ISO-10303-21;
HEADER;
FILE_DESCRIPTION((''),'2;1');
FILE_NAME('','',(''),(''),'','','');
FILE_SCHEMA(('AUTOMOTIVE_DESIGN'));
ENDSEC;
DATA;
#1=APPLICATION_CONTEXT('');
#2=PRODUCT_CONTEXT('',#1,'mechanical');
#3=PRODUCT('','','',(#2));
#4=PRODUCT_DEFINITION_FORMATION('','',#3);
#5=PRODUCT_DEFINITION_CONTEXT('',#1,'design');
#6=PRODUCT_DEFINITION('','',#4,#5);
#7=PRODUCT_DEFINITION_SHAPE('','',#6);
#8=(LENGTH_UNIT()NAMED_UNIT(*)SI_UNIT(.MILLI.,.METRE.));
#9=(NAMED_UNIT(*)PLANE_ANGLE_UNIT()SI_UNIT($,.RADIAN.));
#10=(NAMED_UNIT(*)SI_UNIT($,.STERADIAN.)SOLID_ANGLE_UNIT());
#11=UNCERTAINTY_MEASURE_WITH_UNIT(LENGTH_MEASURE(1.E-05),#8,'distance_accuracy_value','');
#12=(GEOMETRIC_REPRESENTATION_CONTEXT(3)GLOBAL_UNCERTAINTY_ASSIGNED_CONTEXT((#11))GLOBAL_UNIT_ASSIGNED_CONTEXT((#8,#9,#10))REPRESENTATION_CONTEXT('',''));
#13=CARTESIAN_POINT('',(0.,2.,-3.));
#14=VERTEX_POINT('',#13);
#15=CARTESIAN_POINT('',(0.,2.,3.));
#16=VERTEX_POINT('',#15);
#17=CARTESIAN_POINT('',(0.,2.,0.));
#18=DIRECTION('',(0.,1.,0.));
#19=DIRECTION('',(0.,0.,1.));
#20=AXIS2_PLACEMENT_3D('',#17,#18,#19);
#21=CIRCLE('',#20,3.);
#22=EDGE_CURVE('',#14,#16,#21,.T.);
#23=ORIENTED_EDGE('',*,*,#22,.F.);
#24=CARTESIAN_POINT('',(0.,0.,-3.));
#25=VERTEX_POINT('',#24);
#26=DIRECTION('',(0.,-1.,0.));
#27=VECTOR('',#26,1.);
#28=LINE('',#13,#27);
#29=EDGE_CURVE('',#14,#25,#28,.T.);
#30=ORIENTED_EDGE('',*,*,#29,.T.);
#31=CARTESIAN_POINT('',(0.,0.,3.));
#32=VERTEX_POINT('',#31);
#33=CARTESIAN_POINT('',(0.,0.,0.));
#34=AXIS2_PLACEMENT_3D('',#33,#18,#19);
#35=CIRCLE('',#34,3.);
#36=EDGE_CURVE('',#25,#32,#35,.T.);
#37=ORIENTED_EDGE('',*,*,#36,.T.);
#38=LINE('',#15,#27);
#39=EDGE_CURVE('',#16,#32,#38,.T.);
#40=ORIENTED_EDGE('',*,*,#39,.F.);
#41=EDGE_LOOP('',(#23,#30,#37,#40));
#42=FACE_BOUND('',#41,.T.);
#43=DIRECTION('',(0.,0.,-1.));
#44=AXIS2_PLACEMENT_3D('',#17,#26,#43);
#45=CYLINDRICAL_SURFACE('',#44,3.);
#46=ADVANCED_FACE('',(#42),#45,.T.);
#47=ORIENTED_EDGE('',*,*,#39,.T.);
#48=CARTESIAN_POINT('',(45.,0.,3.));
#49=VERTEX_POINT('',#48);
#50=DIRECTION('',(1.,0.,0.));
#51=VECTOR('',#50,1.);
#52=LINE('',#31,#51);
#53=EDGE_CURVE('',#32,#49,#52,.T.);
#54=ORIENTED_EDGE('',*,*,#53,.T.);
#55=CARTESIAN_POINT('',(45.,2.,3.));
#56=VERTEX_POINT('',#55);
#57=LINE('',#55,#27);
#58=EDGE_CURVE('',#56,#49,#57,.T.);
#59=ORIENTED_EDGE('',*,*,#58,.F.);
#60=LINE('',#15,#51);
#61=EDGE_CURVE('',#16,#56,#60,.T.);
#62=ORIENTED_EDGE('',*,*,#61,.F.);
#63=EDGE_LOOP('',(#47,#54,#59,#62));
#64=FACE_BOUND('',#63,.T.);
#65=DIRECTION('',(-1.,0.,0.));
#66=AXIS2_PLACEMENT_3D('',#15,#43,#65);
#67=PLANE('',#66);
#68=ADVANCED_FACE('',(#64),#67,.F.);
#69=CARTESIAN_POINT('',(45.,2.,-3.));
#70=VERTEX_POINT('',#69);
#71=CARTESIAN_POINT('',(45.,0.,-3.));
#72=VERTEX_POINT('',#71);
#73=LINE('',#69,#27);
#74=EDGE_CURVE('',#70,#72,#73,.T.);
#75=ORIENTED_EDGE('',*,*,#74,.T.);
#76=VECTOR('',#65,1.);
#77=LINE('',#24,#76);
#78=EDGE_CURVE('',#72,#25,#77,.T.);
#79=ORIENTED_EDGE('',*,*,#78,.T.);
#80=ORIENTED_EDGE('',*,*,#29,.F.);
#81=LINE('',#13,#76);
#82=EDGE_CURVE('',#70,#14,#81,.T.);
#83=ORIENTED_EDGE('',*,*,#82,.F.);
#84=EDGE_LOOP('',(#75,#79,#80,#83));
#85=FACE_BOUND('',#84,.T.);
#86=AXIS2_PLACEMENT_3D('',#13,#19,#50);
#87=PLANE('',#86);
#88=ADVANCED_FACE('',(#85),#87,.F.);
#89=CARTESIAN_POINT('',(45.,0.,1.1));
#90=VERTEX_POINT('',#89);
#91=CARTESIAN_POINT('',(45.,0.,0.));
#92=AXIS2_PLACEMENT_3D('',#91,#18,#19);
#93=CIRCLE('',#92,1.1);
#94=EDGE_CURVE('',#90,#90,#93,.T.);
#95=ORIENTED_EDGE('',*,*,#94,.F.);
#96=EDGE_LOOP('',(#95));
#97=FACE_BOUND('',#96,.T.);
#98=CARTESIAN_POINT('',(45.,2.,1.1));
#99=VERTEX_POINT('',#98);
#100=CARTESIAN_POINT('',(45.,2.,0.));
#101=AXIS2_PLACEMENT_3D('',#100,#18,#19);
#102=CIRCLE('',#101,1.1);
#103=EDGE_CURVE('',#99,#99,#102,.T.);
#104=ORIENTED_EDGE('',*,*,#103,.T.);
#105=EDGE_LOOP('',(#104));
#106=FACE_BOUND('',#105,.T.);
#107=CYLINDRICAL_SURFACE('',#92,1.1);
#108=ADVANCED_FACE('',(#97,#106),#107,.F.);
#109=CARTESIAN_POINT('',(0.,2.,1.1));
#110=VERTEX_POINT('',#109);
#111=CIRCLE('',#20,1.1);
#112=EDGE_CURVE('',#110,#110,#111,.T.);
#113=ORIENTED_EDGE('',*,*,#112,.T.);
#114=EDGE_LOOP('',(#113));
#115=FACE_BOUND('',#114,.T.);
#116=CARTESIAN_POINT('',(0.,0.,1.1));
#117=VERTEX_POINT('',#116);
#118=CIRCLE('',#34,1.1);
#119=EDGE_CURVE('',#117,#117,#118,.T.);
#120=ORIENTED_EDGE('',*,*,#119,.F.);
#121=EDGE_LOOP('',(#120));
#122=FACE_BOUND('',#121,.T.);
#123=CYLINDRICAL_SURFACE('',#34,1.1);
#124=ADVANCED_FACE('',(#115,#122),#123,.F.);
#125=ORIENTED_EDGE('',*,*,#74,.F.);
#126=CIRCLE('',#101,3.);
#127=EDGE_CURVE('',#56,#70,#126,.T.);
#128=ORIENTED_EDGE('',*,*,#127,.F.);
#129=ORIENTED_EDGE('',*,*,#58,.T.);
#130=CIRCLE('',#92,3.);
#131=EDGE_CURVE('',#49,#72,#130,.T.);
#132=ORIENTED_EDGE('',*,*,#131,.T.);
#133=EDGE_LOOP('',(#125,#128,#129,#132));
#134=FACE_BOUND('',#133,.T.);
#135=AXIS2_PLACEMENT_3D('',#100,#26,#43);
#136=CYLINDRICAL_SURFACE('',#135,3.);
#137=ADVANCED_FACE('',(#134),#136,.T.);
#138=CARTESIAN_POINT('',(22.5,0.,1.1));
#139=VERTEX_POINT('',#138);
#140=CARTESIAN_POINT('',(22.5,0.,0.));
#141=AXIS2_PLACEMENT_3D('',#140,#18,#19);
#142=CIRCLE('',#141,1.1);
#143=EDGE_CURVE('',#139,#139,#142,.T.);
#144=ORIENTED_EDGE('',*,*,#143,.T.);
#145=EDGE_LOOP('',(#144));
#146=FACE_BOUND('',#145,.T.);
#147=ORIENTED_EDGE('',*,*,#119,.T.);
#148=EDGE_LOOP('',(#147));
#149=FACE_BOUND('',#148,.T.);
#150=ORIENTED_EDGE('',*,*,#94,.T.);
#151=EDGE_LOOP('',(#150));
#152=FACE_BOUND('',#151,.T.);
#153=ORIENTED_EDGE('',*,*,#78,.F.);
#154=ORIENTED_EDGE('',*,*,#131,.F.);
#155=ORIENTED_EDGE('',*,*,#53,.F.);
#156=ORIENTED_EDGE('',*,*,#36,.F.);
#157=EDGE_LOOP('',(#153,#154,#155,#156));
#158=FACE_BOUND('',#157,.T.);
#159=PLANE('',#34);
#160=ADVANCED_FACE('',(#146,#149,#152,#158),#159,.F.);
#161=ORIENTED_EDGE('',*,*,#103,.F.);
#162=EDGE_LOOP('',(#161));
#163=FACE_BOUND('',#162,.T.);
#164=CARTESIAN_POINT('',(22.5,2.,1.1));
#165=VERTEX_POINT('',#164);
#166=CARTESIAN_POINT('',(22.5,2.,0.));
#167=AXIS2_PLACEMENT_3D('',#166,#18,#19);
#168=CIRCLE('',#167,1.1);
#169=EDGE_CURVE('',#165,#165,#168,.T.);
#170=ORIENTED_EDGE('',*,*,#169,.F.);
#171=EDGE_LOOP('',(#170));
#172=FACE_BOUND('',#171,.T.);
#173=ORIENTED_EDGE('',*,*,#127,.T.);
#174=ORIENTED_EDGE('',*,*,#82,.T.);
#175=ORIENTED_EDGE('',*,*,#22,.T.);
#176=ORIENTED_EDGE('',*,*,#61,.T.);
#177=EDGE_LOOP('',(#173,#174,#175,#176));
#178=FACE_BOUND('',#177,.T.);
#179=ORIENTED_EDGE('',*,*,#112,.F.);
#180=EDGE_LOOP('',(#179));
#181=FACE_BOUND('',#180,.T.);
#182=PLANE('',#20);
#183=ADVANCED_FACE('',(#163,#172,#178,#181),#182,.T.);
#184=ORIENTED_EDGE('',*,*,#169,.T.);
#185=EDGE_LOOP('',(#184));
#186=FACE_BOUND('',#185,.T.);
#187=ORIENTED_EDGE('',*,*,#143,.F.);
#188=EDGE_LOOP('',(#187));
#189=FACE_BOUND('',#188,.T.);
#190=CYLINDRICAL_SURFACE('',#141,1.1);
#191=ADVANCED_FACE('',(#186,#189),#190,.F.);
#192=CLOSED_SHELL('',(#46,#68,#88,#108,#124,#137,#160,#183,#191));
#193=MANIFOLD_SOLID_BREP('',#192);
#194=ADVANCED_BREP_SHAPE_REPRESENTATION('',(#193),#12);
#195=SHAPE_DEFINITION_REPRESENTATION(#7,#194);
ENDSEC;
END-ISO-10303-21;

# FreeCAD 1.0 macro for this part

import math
import FreeCAD as App
import Part
import Sketcher

V = App.Vector

doc = App.newDocument("Part")
body = doc.addObject("PartDesign::Body", "Body")

# Sketch on XZ plane
sketch1 = body.newObject("Sketcher::SketchObject", "Sketch")
sketch1.AttachmentSupport = (doc.getObject("XZ_Plane"), [""])
sketch1.MapMode = "FlatFace"
sketch1.addGeometry([
    Part.LineSegment(V(45, -3, 0), V(0, -3, 0)),
    Part.ArcOfCircle(Part.Circle(V(0, 0, 0), V(0, 0, 1), 3), math.radians(90), math.radians(270)),
    Part.LineSegment(V(0, 3, 0), V(45, 3, 0)),
    Part.ArcOfCircle(Part.Circle(V(45, 0, 0), V(0, 0, 1), 3), math.radians(-90), math.radians(90)),
], False)
sketch1.addConstraint([
    Sketcher.Constraint("Tangent", 0, 2, 1, 2),
    Sketcher.Constraint("Tangent", 1, 1, 2, 1),
    Sketcher.Constraint("Tangent", 2, 2, 3, 2),
    Sketcher.Constraint("Tangent", 3, 1, 0, 1),
    Sketcher.Constraint("Horizontal", 0),
    Sketcher.Constraint("Horizontal", 2),
    Sketcher.Constraint("Coincident", 1, 3, -1, 1),
    Sketcher.Constraint("Radius", 1, 3.0),
    Sketcher.Constraint("DistanceX", 0, 2, 0, 1, 45.0),
])
pad1 = body.newObject("PartDesign::Pad", "Pad")
pad1.Profile = sketch1
pad1.Length = 2
pad1.Reversed = True

# Sketch on XZ plane
sketch2 = body.newObject("Sketcher::SketchObject", "Sketch001")
sketch2.AttachmentSupport = (doc.getObject("XZ_Plane"), [""])
sketch2.MapMode = "FlatFace"
sketch2.AttachmentOffset = App.Placement(V(0, 0, -2), App.Rotation())
sketch2.addGeometry([
    Part.Circle(V(0, 0, 0), V(0, 0, 1), 1.1),
    Part.Circle(V(45, 0, 0), V(0, 0, 1), 1.1),
    Part.Circle(V(22.5, 0, 0), V(0, 0, 1), 1.1),
], False)
sketch2.addConstraint([
    Sketcher.Constraint("Coincident", 0, 3, -1, 1),
    Sketcher.Constraint("Equal", 0, 1),
    Sketcher.Constraint("Equal", 1, 2),
    Sketcher.Constraint("PointOnObject", 1, 3, -1),
    Sketcher.Constraint("PointOnObject", 2, 3, -1),
    Sketcher.Constraint("Diameter", 0, 2.2),
    Sketcher.Constraint("DistanceX", -1, 1, 1, 3, 45.0),
    Sketcher.Constraint("DistanceX", -1, 1, 2, 3, 22.5),
])
pocket1 = body.newObject("PartDesign::Pocket", "Pocket")
pocket1.Profile = sketch2
pocket1.Type = "ThroughAll"
pocket1.Reversed = True

doc.recompute()
